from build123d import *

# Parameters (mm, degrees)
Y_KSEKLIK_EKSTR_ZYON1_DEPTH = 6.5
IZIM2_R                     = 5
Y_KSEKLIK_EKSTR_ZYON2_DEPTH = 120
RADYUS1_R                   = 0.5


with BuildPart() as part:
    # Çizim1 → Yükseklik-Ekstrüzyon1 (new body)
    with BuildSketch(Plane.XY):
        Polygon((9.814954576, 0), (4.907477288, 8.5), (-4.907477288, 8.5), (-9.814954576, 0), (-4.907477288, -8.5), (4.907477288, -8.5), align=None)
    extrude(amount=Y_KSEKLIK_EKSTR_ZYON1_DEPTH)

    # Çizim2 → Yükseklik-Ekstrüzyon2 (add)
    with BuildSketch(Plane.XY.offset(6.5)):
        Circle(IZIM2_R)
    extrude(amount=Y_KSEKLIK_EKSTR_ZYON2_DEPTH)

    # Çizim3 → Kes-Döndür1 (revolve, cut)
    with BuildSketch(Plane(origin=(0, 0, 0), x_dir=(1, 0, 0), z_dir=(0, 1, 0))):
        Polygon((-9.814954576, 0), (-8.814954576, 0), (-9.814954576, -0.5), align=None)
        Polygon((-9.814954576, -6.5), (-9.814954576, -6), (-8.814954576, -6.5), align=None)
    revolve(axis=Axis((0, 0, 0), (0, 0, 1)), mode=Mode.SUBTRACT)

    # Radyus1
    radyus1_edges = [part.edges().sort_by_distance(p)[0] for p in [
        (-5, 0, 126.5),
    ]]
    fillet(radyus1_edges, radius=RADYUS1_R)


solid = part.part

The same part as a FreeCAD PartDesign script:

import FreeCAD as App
import Part
import Sketcher

V = App.Vector
Q = App.Units.Quantity


def edges_at(feature, points):
    """Names of the edges that pass closest to the given points."""
    edges = feature.Shape.Edges
    near = lambda p: min(range(len(edges)), key=lambda i: edges[i].distToShape(Part.Vertex(*p))[0])
    return sorted({f"Edge{near(p) + 1}" for p in points})

doc = App.newDocument("Part")
body = doc.addObject("PartDesign::Body", "Body")

# Sketch on XY plane
sketch1 = body.newObject("Sketcher::SketchObject", "Sketch")
sketch1.AttachmentSupport = (doc.getObject("XY_Plane"), [""])
sketch1.MapMode = "FlatFace"
sketch1.addGeometry([
    Part.LineSegment(V(10, 0, 0), V(5, 8, 0)),  # 0
    Part.LineSegment(V(5, 8, 0), V(-5, 8, 0)),  # 1
    Part.LineSegment(V(-5, 8, 0), V(-10, 0, 0)),  # 2
    Part.LineSegment(V(-10, 0, 0), V(-5, -8, 0)),  # 3
    Part.LineSegment(V(-5, -8, 0), V(5, -8, 0)),  # 4
    Part.LineSegment(V(5, -8, 0), V(10, 0, 0)),  # 5
], False)
sketch1.addConstraint([
    Sketcher.Constraint("Coincident", 0, 2, 1, 1),
    Sketcher.Constraint("Coincident", 1, 2, 2, 1),
    Sketcher.Constraint("Coincident", 2, 2, 3, 1),
    Sketcher.Constraint("Coincident", 3, 2, 4, 1),
    Sketcher.Constraint("Coincident", 4, 2, 5, 1),
    Sketcher.Constraint("Coincident", 5, 2, 0, 1),
    Sketcher.Constraint("Horizontal", 1),
    Sketcher.Constraint("Horizontal", 4),
    Sketcher.Constraint("Symmetric", 0, 2, 3, 2, -1, 1),
    Sketcher.Constraint("Symmetric", 2, 2, 5, 2, -1, 1),
    Sketcher.Constraint("PointOnObject", 2, 2, -1),
    Sketcher.Constraint("Parallel", 2, 5),
    Sketcher.Constraint("Vertical", 1, 2, 3, 2),
    Sketcher.Constraint("Angle", 0, Q("120 deg")),
    Sketcher.Constraint("DistanceY", 3, 2, 1, 2, 17.0),
    Sketcher.Constraint("DistanceX", 1, 2, 1, 1, 9.814955),
])
pad1 = body.newObject("PartDesign::Pad", "Pad")
pad1.Profile = sketch1
pad1.Length = 6.5

# Sketch on XY plane
sketch2 = body.newObject("Sketcher::SketchObject", "Sketch001")
sketch2.AttachmentSupport = (doc.getObject("XY_Plane"), [""])
sketch2.MapMode = "FlatFace"
sketch2.AttachmentOffset = App.Placement(V(0, 0, 6.5), App.Rotation())
sketch2.addGeometry(Part.Circle(V(0, 0, 0), V(0, 0, 1), 5), False)
sketch2.addConstraint([
    Sketcher.Constraint("Coincident", 0, 3, -1, 1),
    Sketcher.Constraint("Diameter", 0, 10.0),
])
pad2 = body.newObject("PartDesign::Pad", "Pad001")
pad2.Profile = sketch2
pad2.Length = 120

# Sketch on XZ plane
sketch3 = body.newObject("Sketcher::SketchObject", "Sketch002")
sketch3.AttachmentSupport = (doc.getObject("XZ_Plane"), [""])
sketch3.MapMode = "FlatFace"
sketch3.addGeometry([
    Part.LineSegment(V(-8.8, 0, 0), V(-9.8, 0, 0)),  # 0
    Part.LineSegment(V(-9.8, 0, 0), V(-9.8, 0.5, 0)),  # 1
    Part.LineSegment(V(-9.8, 0.5, 0), V(-8.8, 0, 0)),  # 2
    Part.LineSegment(V(-9.8, 6, 0), V(-9.8, 6.5, 0)),  # 3
    Part.LineSegment(V(-9.8, 6.5, 0), V(-8.8, 6.5, 0)),  # 4
    Part.LineSegment(V(-8.8, 6.5, 0), V(-9.8, 6, 0)),  # 5
], False)
sketch3.addConstraint([
    Sketcher.Constraint("Coincident", 0, 2, 1, 1),
    Sketcher.Constraint("Coincident", 1, 2, 2, 1),
    Sketcher.Constraint("Coincident", 2, 2, 0, 1),
    Sketcher.Constraint("Coincident", 3, 2, 4, 1),
    Sketcher.Constraint("Coincident", 4, 2, 5, 1),
    Sketcher.Constraint("Coincident", 5, 2, 3, 1),
    Sketcher.Constraint("Horizontal", 0),
    Sketcher.Constraint("Vertical", 1),
    Sketcher.Constraint("Vertical", 3),
    Sketcher.Constraint("Horizontal", 4),
    Sketcher.Constraint("PointOnObject", 0, 2, -1),
    Sketcher.Constraint("Vertical", 1, 2, 3, 2),
    Sketcher.Constraint("Vertical", 2, 2, 4, 2),
    Sketcher.Constraint("Equal", 1, 3),
    Sketcher.Constraint("DistanceX", 0, 2, 0, 1, 1.0),
    Sketcher.Constraint("DistanceY", 1, 1, 1, 2, 0.5),
    Sketcher.Constraint("DistanceY", -1, 1, 5, 2, 6.0),
    Sketcher.Constraint("DistanceX", 0, 2, -1, 1, 9.814955),
])
groove = body.newObject("PartDesign::Groove", "Groove")
groove.Profile = sketch3
groove.ReferenceAxis = (sketch3, ["V_Axis"])
groove.Angle = 360
doc.recompute()

fillet = body.newObject("PartDesign::Fillet", "Fillet")
fillet.Base = (groove, edges_at(groove, [(-5, 0, 126.5)]))
fillet.Radius = 0.5

doc.recompute()
